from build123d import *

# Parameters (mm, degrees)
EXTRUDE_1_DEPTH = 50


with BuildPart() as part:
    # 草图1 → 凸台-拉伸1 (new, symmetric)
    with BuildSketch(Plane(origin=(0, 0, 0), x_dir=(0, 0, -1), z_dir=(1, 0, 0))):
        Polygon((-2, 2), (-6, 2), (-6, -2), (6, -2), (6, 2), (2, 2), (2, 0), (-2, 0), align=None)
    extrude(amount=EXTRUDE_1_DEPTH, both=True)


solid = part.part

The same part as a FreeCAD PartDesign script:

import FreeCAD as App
import Part
import Sketcher

V = App.Vector

doc = App.newDocument("Part")
body = doc.addObject("PartDesign::Body", "Body")

# Sketch on YZ plane
sketch1 = body.newObject("Sketcher::SketchObject", "Sketch")
sketch1.AttachmentSupport = (doc.getObject("YZ_Plane"), [""])
sketch1.MapMode = "FlatFace"
sketch1.addGeometry([
    Part.LineSegment(V(2, 2, 0), V(2, 6, 0)),  # 0
    Part.LineSegment(V(2, 6, 0), V(-2, 6, 0)),  # 1
    Part.LineSegment(V(-2, 6, 0), V(-2, -6, 0)),  # 2
    Part.LineSegment(V(-2, -6, 0), V(2, -6, 0)),  # 3
    Part.LineSegment(V(2, -6, 0), V(2, -2, 0)),  # 4
    Part.LineSegment(V(2, -2, 0), V(0, -2, 0)),  # 5
    Part.LineSegment(V(0, -2, 0), V(0, 2, 0)),  # 6
    Part.LineSegment(V(0, 2, 0), V(2, 2, 0)),  # 7
], False)
sketch1.addConstraint([
    Sketcher.Constraint("Coincident", 0, 2, 1, 1),
    Sketcher.Constraint("Coincident", 1, 2, 2, 1),
    Sketcher.Constraint("Coincident", 2, 2, 3, 1),
    Sketcher.Constraint("Coincident", 3, 2, 4, 1),
    Sketcher.Constraint("Coincident", 4, 2, 5, 1),
    Sketcher.Constraint("Coincident", 5, 2, 6, 1),
    Sketcher.Constraint("Coincident", 6, 2, 7, 1),
    Sketcher.Constraint("Coincident", 7, 2, 0, 1),
    Sketcher.Constraint("Vertical", 0),
    Sketcher.Constraint("Horizontal", 1),
    Sketcher.Constraint("Vertical", 2),
    Sketcher.Constraint("Horizontal", 3),
    Sketcher.Constraint("Vertical", 4),
    Sketcher.Constraint("Horizontal", 5),
    Sketcher.Constraint("Vertical", 6),
    Sketcher.Constraint("Horizontal", 7),
    Sketcher.Constraint("Symmetric", 0, 2, 2, 2, -1, 1),
    Sketcher.Constraint("Symmetric", 5, 2, 6, 2, -1, 1),
    Sketcher.Constraint("Vertical", 0, 2, 3, 2),
    Sketcher.Constraint("Equal", 3, 0),
    Sketcher.Constraint("Equal", 4, 6),
    Sketcher.Constraint("DistanceX", 1, 2, 1, 1, 4.0),
])
pad1 = body.newObject("PartDesign::Pad", "Pad")
pad1.Profile = sketch1
pad1.Length = 100
pad1.Midplane = True

doc.recompute()
